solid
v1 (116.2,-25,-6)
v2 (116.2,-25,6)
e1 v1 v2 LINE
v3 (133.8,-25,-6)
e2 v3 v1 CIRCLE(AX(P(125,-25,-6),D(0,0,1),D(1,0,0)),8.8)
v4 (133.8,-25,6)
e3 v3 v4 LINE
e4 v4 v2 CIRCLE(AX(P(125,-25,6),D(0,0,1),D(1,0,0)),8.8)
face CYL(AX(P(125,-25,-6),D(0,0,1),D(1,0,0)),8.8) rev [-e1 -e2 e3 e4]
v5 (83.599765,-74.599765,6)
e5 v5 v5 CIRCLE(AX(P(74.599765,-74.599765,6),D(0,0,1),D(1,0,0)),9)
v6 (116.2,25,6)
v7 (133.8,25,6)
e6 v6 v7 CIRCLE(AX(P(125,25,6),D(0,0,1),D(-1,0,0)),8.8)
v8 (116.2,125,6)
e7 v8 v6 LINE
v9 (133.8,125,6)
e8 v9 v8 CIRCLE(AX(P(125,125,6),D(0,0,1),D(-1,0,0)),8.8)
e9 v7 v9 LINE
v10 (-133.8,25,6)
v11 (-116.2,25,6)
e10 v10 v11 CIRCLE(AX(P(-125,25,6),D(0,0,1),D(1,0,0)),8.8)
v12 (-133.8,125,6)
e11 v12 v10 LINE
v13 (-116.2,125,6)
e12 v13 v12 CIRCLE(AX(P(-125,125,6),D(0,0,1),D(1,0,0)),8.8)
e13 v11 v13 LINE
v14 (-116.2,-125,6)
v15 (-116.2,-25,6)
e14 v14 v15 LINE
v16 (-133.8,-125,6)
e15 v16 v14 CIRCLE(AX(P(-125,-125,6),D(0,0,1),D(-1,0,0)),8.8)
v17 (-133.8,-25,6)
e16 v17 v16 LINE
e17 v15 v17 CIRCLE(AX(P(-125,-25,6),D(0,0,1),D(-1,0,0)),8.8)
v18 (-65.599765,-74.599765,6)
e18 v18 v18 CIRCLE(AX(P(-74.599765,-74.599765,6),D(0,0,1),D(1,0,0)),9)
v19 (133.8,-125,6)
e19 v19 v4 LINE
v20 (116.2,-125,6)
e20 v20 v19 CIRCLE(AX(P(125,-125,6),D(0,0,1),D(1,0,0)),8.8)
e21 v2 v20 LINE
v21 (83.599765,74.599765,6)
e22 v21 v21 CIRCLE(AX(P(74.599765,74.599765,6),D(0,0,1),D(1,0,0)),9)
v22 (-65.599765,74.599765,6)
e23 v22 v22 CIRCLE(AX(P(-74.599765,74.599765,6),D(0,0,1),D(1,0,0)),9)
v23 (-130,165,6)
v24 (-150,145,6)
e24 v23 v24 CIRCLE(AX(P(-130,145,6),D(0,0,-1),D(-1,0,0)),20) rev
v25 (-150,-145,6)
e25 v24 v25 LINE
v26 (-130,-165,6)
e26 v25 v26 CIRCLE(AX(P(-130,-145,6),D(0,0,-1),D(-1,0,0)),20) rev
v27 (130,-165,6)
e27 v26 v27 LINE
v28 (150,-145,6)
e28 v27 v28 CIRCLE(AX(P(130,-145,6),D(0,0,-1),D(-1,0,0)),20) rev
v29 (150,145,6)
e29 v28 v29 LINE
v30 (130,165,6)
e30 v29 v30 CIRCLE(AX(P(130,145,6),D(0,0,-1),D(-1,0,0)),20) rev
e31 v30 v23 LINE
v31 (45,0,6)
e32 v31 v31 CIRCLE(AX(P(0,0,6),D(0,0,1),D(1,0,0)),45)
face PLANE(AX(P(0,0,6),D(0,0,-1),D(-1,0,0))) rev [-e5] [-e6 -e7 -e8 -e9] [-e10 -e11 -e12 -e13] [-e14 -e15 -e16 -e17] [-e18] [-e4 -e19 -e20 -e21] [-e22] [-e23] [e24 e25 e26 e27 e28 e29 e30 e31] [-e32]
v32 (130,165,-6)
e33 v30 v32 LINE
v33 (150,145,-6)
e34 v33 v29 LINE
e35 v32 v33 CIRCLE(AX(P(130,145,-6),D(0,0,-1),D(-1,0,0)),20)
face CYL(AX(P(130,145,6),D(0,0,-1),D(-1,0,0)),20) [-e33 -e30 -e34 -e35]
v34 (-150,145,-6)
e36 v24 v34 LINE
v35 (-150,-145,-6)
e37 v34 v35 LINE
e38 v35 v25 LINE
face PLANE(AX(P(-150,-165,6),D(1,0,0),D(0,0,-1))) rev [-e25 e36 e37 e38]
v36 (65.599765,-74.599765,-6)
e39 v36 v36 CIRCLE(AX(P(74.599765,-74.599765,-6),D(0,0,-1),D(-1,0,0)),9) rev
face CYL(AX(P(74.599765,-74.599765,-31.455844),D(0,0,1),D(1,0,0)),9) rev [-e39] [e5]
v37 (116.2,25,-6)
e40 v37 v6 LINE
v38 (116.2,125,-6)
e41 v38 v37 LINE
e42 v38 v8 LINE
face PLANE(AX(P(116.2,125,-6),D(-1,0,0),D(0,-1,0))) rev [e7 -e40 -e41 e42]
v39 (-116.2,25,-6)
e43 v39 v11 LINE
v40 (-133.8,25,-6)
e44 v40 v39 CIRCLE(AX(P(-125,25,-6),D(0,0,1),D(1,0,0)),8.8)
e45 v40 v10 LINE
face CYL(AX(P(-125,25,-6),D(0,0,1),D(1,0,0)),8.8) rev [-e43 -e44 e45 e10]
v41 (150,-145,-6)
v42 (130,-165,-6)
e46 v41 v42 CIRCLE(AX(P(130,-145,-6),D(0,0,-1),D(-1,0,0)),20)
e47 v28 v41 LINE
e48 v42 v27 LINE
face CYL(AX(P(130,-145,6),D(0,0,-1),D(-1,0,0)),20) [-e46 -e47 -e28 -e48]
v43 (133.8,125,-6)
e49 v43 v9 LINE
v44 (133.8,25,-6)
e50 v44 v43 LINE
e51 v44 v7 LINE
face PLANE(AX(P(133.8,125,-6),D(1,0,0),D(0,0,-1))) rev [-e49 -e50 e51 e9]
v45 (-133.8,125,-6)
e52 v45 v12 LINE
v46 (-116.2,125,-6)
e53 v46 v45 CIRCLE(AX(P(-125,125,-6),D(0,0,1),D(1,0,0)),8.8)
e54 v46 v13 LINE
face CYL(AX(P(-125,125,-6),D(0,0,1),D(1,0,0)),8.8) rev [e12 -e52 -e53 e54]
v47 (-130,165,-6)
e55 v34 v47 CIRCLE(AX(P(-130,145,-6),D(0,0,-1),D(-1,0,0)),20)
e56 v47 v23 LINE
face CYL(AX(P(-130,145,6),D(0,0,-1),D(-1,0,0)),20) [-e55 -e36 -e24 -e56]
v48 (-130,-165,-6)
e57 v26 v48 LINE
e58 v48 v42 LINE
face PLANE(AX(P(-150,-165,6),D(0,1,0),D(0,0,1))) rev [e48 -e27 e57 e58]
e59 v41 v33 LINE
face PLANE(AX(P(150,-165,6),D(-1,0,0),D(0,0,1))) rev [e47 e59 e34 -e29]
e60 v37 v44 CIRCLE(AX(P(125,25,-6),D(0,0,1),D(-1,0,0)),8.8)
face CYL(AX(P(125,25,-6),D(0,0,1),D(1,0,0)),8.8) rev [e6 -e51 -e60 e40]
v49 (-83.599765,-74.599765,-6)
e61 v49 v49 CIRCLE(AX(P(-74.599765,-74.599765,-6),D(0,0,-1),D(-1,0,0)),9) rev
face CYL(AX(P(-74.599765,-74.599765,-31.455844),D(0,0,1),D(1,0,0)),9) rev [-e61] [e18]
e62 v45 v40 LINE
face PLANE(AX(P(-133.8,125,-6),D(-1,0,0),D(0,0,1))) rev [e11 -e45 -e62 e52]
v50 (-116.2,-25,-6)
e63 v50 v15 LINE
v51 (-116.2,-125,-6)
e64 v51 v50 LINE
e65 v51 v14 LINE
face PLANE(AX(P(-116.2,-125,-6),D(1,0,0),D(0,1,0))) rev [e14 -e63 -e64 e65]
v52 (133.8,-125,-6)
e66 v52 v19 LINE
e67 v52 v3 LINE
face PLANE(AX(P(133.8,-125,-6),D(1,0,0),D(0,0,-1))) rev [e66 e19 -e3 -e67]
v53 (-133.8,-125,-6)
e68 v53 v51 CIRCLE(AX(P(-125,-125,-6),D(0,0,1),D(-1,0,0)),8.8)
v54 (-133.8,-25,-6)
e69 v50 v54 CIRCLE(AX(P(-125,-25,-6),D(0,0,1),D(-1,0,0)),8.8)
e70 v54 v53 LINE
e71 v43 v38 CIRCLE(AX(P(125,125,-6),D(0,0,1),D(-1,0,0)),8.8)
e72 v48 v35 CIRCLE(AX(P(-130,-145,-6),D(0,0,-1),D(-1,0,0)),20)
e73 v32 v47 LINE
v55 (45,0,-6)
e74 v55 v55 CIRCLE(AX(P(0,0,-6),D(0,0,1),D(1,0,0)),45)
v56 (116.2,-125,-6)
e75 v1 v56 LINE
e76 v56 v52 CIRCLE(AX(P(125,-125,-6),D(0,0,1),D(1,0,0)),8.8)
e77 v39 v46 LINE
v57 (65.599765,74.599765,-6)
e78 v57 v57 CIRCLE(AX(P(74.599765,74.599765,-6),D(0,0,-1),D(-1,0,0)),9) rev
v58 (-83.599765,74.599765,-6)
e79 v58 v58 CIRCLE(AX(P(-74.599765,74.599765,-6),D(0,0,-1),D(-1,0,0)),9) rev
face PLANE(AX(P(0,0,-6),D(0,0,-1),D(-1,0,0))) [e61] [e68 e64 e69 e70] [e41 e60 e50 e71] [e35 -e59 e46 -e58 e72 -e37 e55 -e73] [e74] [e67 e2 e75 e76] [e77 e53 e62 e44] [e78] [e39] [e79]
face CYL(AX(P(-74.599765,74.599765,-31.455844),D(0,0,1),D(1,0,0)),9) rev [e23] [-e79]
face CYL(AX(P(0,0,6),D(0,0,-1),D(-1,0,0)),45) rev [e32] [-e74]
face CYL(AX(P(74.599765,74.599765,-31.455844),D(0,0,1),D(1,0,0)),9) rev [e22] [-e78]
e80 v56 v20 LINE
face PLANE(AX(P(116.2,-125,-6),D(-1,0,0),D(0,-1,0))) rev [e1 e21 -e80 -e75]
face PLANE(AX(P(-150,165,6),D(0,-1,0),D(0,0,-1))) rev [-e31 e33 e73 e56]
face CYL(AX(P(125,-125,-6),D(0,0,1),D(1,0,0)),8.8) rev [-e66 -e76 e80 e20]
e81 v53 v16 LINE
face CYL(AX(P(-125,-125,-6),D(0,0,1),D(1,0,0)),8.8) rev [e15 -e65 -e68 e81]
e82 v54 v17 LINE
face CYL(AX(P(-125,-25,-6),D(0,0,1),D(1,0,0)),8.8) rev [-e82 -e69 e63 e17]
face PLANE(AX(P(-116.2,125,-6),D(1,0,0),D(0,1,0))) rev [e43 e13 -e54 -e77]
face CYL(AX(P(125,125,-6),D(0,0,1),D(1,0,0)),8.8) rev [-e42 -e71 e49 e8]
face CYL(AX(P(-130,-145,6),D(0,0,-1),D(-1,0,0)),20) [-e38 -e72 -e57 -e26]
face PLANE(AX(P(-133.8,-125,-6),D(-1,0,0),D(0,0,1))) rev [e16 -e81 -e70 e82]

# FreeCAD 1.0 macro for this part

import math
import FreeCAD as App
import Part
import Sketcher
from FreeCAD import Vector


def edges_at(feature, points):
    """Names of the edges that pass closest to the given points."""
    edges = feature.Shape.Edges
    near = lambda p: min(range(len(edges)), key=lambda i: edges[i].distToShape(Part.Vertex(*p))[0])
    return sorted({f"Edge{near(p) + 1}" for p in points})

doc = App.newDocument("Part")
body = doc.addObject("PartDesign::Body", "Body")

# Sketch on XY plane
sketch1 = body.newObject("Sketcher::SketchObject", "Sketch")
sketch1.AttachmentSupport = (doc.getObject("XY_Plane"), [""])
sketch1.MapMode = "FlatFace"
sketch1.addGeometry(Part.LineSegment(Vector(-150, 165, 0), Vector(-150, -165, 0)), False)
sketch1.addGeometry(Part.LineSegment(Vector(-150, -165, 0), Vector(150, -165, 0)), False)
sketch1.addGeometry(Part.LineSegment(Vector(150, -165, 0), Vector(150, 165, 0)), False)
sketch1.addGeometry(Part.LineSegment(Vector(150, 165, 0), Vector(-150, 165, 0)), False)
sketch1.addGeometry(Part.Circle(Vector(0, 0, 0), Vector(0, 0, 1), 45), False)
sketch1.addConstraint(Sketcher.Constraint("Coincident", 0, 2, 1, 1))
sketch1.addConstraint(Sketcher.Constraint("Coincident", 1, 2, 2, 1))
sketch1.addConstraint(Sketcher.Constraint("Coincident", 2, 2, 3, 1))
sketch1.addConstraint(Sketcher.Constraint("Coincident", 3, 2, 0, 1))
sketch1.addConstraint(Sketcher.Constraint("Vertical", 0))
sketch1.addConstraint(Sketcher.Constraint("Horizontal", 1))
sketch1.addConstraint(Sketcher.Constraint("Vertical", 2))
sketch1.addConstraint(Sketcher.Constraint("Horizontal", 3))
sketch1.addConstraint(Sketcher.Constraint("Coincident", 4, 3, -1, 1))
sketch1.addConstraint(Sketcher.Constraint("Symmetric", 0, 2, 2, 2, -1, 1))
sketch1.addConstraint(Sketcher.Constraint("Diameter", 4, 90.0))
sketch1.addConstraint(Sketcher.Constraint("DistanceX", 1, 1, 1, 2, 300.0))
sketch1.addConstraint(Sketcher.Constraint("DistanceY", 0, 2, 0, 1, 330.0))
pad1 = body.newObject("PartDesign::Pad", "Pad")
pad1.Profile = sketch1
pad1.Length = 12
pad1.Midplane = True

# Sketch on XY plane
sketch2 = body.newObject("Sketcher::SketchObject", "Sketch001")
sketch2.AttachmentSupport = (doc.getObject("XY_Plane"), [""])
sketch2.MapMode = "FlatFace"
sketch2.AttachmentOffset = App.Placement(Vector(0, 0, 6), App.Rotation())
sketch2.addGeometry(Part.LineSegment(Vector(-116, 25, 0), Vector(-116, 125, 0)), False)
sketch2.addGeometry(Part.ArcOfCircle(Part.Circle(Vector(-125, 125, 0), Vector(0, 0, 1), 9), math.radians(0), math.radians(180)), False)
sketch2.addGeometry(Part.LineSegment(Vector(-134, 125, 0), Vector(-134, 25, 0)), False)
sketch2.addGeometry(Part.ArcOfCircle(Part.Circle(Vector(-125, 25, 0), Vector(0, 0, 1), 9), math.radians(180), math.radians(360)), False)
sketch2.addGeometry(Part.LineSegment(Vector(-116, -125, 0), Vector(-116, -25, 0)), False)
sketch2.addGeometry(Part.ArcOfCircle(Part.Circle(Vector(-125, -25, 0), Vector(0, 0, 1), 9), math.radians(0), math.radians(180)), False)
sketch2.addGeometry(Part.LineSegment(Vector(-134, -25, 0), Vector(-134, -125, 0)), False)
sketch2.addGeometry(Part.ArcOfCircle(Part.Circle(Vector(-125, -125, 0), Vector(0, 0, 1), 9), math.radians(180), math.radians(360)), False)
sketch2.addGeometry(Part.LineSegment(Vector(116, -25, 0), Vector(116, -125, 0)), False)
sketch2.addGeometry(Part.ArcOfCircle(Part.Circle(Vector(125, -125, 0), Vector(0, 0, 1), 9), math.radians(180), math.radians(360)), False)
sketch2.addGeometry(Part.LineSegment(Vector(134, -125, 0), Vector(134, -25, 0)), False)
sketch2.addGeometry(Part.ArcOfCircle(Part.Circle(Vector(125, -25, 0), Vector(0, 0, 1), 9), math.radians(0), math.radians(180)), False)
sketch2.addGeometry(Part.LineSegment(Vector(116, 125, 0), Vector(116, 25, 0)), False)
sketch2.addGeometry(Part.ArcOfCircle(Part.Circle(Vector(125, 25, 0), Vector(0, 0, 1), 9), math.radians(180), math.radians(360)), False)
sketch2.addGeometry(Part.LineSegment(Vector(134, 25, 0), Vector(134, 125, 0)), False)
sketch2.addGeometry(Part.ArcOfCircle(Part.Circle(Vector(125, 125, 0), Vector(0, 0, 1), 9), math.radians(0), math.radians(180)), False)
sketch2.addConstraint(Sketcher.Constraint("Tangent", 0, 2, 1, 1))
sketch2.addConstraint(Sketcher.Constraint("Tangent", 1, 2, 2, 1))
sketch2.addConstraint(Sketcher.Constraint("Tangent", 2, 2, 3, 1))
sketch2.addConstraint(Sketcher.Constraint("Tangent", 3, 2, 0, 1))
sketch2.addConstraint(Sketcher.Constraint("Tangent", 4, 2, 5, 1))
sketch2.addConstraint(Sketcher.Constraint("Tangent", 5, 2, 6, 1))
sketch2.addConstraint(Sketcher.Constraint("Tangent", 6, 2, 7, 1))
sketch2.addConstraint(Sketcher.Constraint("Tangent", 7, 2, 4, 1))
sketch2.addConstraint(Sketcher.Constraint("Tangent", 8, 2, 9, 1))
sketch2.addConstraint(Sketcher.Constraint("Tangent", 9, 2, 10, 1))
sketch2.addConstraint(Sketcher.Constraint("Tangent", 10, 2, 11, 1))
sketch2.addConstraint(Sketcher.Constraint("Tangent", 11, 2, 8, 1))
sketch2.addConstraint(Sketcher.Constraint("Tangent", 12, 2, 13, 1))
sketch2.addConstraint(Sketcher.Constraint("Tangent", 13, 2, 14, 1))
sketch2.addConstraint(Sketcher.Constraint("Tangent", 14, 2, 15, 1))
sketch2.addConstraint(Sketcher.Constraint("Tangent", 15, 2, 12, 1))
sketch2.addConstraint(Sketcher.Constraint("Vertical", 0))
sketch2.addConstraint(Sketcher.Constraint("Vertical", 2))
sketch2.addConstraint(Sketcher.Constraint("Vertical", 4))
sketch2.addConstraint(Sketcher.Constraint("Vertical", 6))
sketch2.addConstraint(Sketcher.Constraint("Vertical", 8))
sketch2.addConstraint(Sketcher.Constraint("Vertical", 10))
sketch2.addConstraint(Sketcher.Constraint("Vertical", 12))
sketch2.addConstraint(Sketcher.Constraint("Vertical", 14))
sketch2.addConstraint(Sketcher.Constraint("Equal", 3, 5))
sketch2.addConstraint(Sketcher.Constraint("Equal", 7, 9))
sketch2.addConstraint(Sketcher.Constraint("Equal", 11, 13))
sketch2.addConstraint(Sketcher.Constraint("Symmetric", 1, 3, 9, 3, -1, 1))
sketch2.addConstraint(Sketcher.Constraint("Symmetric", 5, 3, 13, 3, -1, 1))
sketch2.addConstraint(Sketcher.Constraint("Symmetric", 7, 3, 9, 3, -2))
sketch2.addConstraint(Sketcher.Constraint("Horizontal", 5, 3, 11, 3))
sketch2.addConstraint(Sketcher.Constraint("Horizontal", 3, 3, 13, 3))
sketch2.addConstraint(Sketcher.Constraint("Horizontal", 1, 3, 15, 3))
sketch2.addConstraint(Sketcher.Constraint("Radius", 1, 8.8))
sketch2.addConstraint(Sketcher.Constraint("DistanceY", 0, 1, 0, 2, 100.0))
sketch2.addConstraint(Sketcher.Constraint("DistanceX", 1, 3, -1, 1, 125.0))
sketch2.addConstraint(Sketcher.Constraint("DistanceY", -1, 1, 1, 3, 125.0))
pocket1 = body.newObject("PartDesign::Pocket", "Pocket")
pocket1.Profile = sketch2
pocket1.Type = "ThroughAll"
doc.recompute()

fillet = body.newObject("PartDesign::Fillet", "Fillet")
fillet.Base = (pocket1, edges_at(pocket1, [
    (150, -165, 0),
    (-150, -165, 0),
    (-150, 165, 0),
    (150, 165, 0),
]))
fillet.Radius = 20

# Sketch on XY plane
sketch3 = body.newObject("Sketcher::SketchObject", "Sketch002")
sketch3.AttachmentSupport = (doc.getObject("XY_Plane"), [""])
sketch3.MapMode = "FlatFace"
sketch3.AttachmentOffset = App.Placement(Vector(0, 0, 6), App.Rotation())
sketch3.addGeometry(Part.Circle(Vector(-75, 75, 0), Vector(0, 0, 1), 9), False)
sketch3.addGeometry(Part.Circle(Vector(75, 75, 0), Vector(0, 0, 1), 9), False)
sketch3.addGeometry(Part.Circle(Vector(75, -75, 0), Vector(0, 0, 1), 9), False)
sketch3.addGeometry(Part.Circle(Vector(-75, -75, 0), Vector(0, 0, 1), 9), False)
sketch3.addConstraint(Sketcher.Constraint("Equal", 0, 1))
sketch3.addConstraint(Sketcher.Constraint("Equal", 1, 2))
sketch3.addConstraint(Sketcher.Constraint("Equal", 2, 3))
sketch3.addConstraint(Sketcher.Constraint("Symmetric", 0, 3, 2, 3, -1, 1))
sketch3.addConstraint(Sketcher.Constraint("Symmetric", 1, 3, 3, 3, -1, 1))
sketch3.addConstraint(Sketcher.Constraint("Symmetric", 0, 3, 1, 3, -2))
sketch3.addConstraint(Sketcher.Constraint("Diameter", 0, 18.0))
sketch3.addConstraint(Sketcher.Constraint("DistanceX", 0, 3, 1, 3, 149.199531))
sketch3.addConstraint(Sketcher.Constraint("DistanceY", 2, 3, 1, 3, 149.199531))
pocket2 = body.newObject("PartDesign::Pocket", "Pocket001")
pocket2.Profile = sketch3
pocket2.Length = 12

doc.recompute()
